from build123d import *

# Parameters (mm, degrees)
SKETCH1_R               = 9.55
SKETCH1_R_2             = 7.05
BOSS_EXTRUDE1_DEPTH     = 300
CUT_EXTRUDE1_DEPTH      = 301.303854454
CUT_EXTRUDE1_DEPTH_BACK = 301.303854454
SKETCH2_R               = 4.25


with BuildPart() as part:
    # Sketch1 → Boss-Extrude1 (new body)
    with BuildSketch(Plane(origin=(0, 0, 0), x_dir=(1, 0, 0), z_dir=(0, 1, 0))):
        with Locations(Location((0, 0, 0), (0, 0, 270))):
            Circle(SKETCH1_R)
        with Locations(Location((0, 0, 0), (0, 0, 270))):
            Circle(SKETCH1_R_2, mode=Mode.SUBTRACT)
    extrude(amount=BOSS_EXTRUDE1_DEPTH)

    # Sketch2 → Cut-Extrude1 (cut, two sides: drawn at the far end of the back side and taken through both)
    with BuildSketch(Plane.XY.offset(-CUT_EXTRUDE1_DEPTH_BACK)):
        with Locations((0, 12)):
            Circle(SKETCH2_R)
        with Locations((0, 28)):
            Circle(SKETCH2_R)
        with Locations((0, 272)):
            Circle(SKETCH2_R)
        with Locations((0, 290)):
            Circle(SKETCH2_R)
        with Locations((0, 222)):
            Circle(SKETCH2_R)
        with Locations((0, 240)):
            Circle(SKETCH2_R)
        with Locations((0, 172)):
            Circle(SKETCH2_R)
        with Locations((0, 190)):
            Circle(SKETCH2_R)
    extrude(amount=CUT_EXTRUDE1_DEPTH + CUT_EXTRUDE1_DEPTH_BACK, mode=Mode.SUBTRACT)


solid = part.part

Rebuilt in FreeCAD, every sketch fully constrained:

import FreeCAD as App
import Part
import Sketcher
from FreeCAD import Vector

doc = App.newDocument("Part")
body = doc.addObject("PartDesign::Body", "Body")

# Sketch on XZ plane
sketch1 = doc.addObject("Sketcher::SketchObject", "Sketch")
body.addObject(sketch1)
sketch1.AttachmentSupport = (doc.XZ_Plane, [""])
sketch1.MapMode = "FlatFace"
sketch1.addGeometry(Part.Circle(Vector(0, 0, 0), Vector(0, 0, 1), 10), False)
sketch1.addGeometry(Part.Circle(Vector(0, 0, 0), Vector(0, 0, 1), 7), False)
sketch1.addConstraint(Sketcher.Constraint("Coincident", 0, 3, -1, 1))
sketch1.addConstraint(Sketcher.Constraint("Coincident", 1, 3, -1, 1))
sketch1.addConstraint(Sketcher.Constraint("Diameter", 0, 19.1))
sketch1.addConstraint(Sketcher.Constraint("Diameter", 1, 14.1))
pad1 = doc.addObject("PartDesign::Pad", "Pad")
body.addObject(pad1)
pad1.Profile = sketch1
pad1.Length = 300
pad1.Reversed = True

# Sketch on XY plane
sketch2 = doc.addObject("Sketcher::SketchObject", "Sketch001")
body.addObject(sketch2)
sketch2.AttachmentSupport = (doc.XY_Plane, [""])
sketch2.MapMode = "FlatFace"
sketch2.addGeometry(Part.Circle(Vector(0, 12, 0), Vector(0, 0, 1), 4.2), False)
sketch2.addGeometry(Part.Circle(Vector(0, 28, 0), Vector(0, 0, 1), 4.2), False)
sketch2.addGeometry(Part.Circle(Vector(0, 272, 0), Vector(0, 0, 1), 4.2), False)
sketch2.addGeometry(Part.Circle(Vector(0, 290, 0), Vector(0, 0, 1), 4.2), False)
sketch2.addGeometry(Part.Circle(Vector(0, 222, 0), Vector(0, 0, 1), 4.2), False)
sketch2.addGeometry(Part.Circle(Vector(0, 240, 0), Vector(0, 0, 1), 4.2), False)
sketch2.addGeometry(Part.Circle(Vector(0, 172, 0), Vector(0, 0, 1), 4.2), False)
sketch2.addGeometry(Part.Circle(Vector(0, 190, 0), Vector(0, 0, 1), 4.2), False)
sketch2.addConstraint(Sketcher.Constraint("Equal", 0, 1))
sketch2.addConstraint(Sketcher.Constraint("Equal", 1, 2))
sketch2.addConstraint(Sketcher.Constraint("Equal", 2, 3))
sketch2.addConstraint(Sketcher.Constraint("Equal", 3, 4))
sketch2.addConstraint(Sketcher.Constraint("Equal", 4, 5))
sketch2.addConstraint(Sketcher.Constraint("Equal", 5, 6))
sketch2.addConstraint(Sketcher.Constraint("Equal", 6, 7))
sketch2.addConstraint(Sketcher.Constraint("PointOnObject", 0, 3, -2))
sketch2.addConstraint(Sketcher.Constraint("PointOnObject", 1, 3, -2))
sketch2.addConstraint(Sketcher.Constraint("PointOnObject", 2, 3, -2))
sketch2.addConstraint(Sketcher.Constraint("PointOnObject", 3, 3, -2))
sketch2.addConstraint(Sketcher.Constraint("PointOnObject", 4, 3, -2))
sketch2.addConstraint(Sketcher.Constraint("PointOnObject", 5, 3, -2))
sketch2.addConstraint(Sketcher.Constraint("PointOnObject", 6, 3, -2))
sketch2.addConstraint(Sketcher.Constraint("PointOnObject", 7, 3, -2))
sketch2.addConstraint(Sketcher.Constraint("Diameter", 0, 8.5))
sketch2.addConstraint(Sketcher.Constraint("DistanceY", -1, 1, 0, 3, 12.0))
sketch2.addConstraint(Sketcher.Constraint("DistanceY", -1, 1, 1, 3, 28.0))
sketch2.addConstraint(Sketcher.Constraint("DistanceY", -1, 1, 2, 3, 272.0))
sketch2.addConstraint(Sketcher.Constraint("DistanceY", -1, 1, 3, 3, 290.0))
sketch2.addConstraint(Sketcher.Constraint("DistanceY", -1, 1, 4, 3, 222.0))
sketch2.addConstraint(Sketcher.Constraint("DistanceY", -1, 1, 5, 3, 240.0))
sketch2.addConstraint(Sketcher.Constraint("DistanceY", -1, 1, 6, 3, 172.0))
sketch2.addConstraint(Sketcher.Constraint("DistanceY", -1, 1, 7, 3, 190.0))
pocket1 = doc.addObject("PartDesign::Pocket", "Pocket")
body.addObject(pocket1)
pocket1.Profile = sketch2
pocket1.Type = "ThroughAll"
pocket1.Midplane = True

doc.recompute()
